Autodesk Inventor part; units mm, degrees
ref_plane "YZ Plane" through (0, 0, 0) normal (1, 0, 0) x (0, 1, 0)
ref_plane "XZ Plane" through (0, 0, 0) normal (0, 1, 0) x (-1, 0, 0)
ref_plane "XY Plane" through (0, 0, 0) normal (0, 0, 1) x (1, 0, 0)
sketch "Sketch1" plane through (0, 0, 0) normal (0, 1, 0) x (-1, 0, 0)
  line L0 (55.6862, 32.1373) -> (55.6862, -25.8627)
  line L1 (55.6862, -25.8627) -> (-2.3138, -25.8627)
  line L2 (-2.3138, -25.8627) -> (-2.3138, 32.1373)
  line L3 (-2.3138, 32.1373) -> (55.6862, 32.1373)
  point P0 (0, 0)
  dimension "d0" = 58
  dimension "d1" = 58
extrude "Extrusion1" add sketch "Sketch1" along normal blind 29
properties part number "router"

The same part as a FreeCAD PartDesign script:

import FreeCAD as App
import Part
import Sketcher
from FreeCAD import Vector
Q = App.Units.Quantity


def add_polygon(sketch, points):
    """Adds a closed chain of lines whose ends are joined by coincident constraints."""
    first, n = sketch.GeometryCount, len(points)
    for a, b in zip(points, points[1:] + points[:1]):
        sketch.addGeometry(Part.LineSegment(App.Vector(*a, 0), App.Vector(*b, 0)), False)
    for i in range(n):
        sketch.addConstraint(Sketcher.Constraint("Coincident", first + i, 2, first + (i + 1) % n, 1))

doc = App.newDocument("Part")
body = doc.addObject("PartDesign::Body", "Body")

# Sketch on XZ plane
sketch1 = body.newObject("Sketcher::SketchObject", "Sketch")
sketch1.AttachmentSupport = (doc.getObject("XZ_Plane"), [""])
sketch1.MapMode = "FlatFace"
add_polygon(sketch1, [(-55.6862, -25.8627), (-55.6862, 32.1373), (2.3138, 32.1373), (2.3138, -25.8627)])  # lines 0-3
sketch1.addConstraint(Sketcher.Constraint("Vertical", 0))
sketch1.addConstraint(Sketcher.Constraint("Horizontal", 1))
sketch1.addConstraint(Sketcher.Constraint("Vertical", 2))
sketch1.addConstraint(Sketcher.Constraint("Horizontal", 3))
sketch1.addConstraint(Sketcher.Constraint("Equal", 3, 0))
sketch1.addConstraint(Sketcher.Constraint("DistanceX", 1, 1, 1, 2, Q("58 mm")))
sketch1.addConstraint(Sketcher.Constraint("DistanceX", 0, 2, -1, 1, Q("55.6862 mm")))
sketch1.addConstraint(Sketcher.Constraint("DistanceY", -1, 1, 0, 2, Q("32.1373 mm")))
pad1 = body.newObject("PartDesign::Pad", "Pad")
pad1.Profile = sketch1
pad1.Length = 29
pad1.Reversed = True

doc.recompute()
